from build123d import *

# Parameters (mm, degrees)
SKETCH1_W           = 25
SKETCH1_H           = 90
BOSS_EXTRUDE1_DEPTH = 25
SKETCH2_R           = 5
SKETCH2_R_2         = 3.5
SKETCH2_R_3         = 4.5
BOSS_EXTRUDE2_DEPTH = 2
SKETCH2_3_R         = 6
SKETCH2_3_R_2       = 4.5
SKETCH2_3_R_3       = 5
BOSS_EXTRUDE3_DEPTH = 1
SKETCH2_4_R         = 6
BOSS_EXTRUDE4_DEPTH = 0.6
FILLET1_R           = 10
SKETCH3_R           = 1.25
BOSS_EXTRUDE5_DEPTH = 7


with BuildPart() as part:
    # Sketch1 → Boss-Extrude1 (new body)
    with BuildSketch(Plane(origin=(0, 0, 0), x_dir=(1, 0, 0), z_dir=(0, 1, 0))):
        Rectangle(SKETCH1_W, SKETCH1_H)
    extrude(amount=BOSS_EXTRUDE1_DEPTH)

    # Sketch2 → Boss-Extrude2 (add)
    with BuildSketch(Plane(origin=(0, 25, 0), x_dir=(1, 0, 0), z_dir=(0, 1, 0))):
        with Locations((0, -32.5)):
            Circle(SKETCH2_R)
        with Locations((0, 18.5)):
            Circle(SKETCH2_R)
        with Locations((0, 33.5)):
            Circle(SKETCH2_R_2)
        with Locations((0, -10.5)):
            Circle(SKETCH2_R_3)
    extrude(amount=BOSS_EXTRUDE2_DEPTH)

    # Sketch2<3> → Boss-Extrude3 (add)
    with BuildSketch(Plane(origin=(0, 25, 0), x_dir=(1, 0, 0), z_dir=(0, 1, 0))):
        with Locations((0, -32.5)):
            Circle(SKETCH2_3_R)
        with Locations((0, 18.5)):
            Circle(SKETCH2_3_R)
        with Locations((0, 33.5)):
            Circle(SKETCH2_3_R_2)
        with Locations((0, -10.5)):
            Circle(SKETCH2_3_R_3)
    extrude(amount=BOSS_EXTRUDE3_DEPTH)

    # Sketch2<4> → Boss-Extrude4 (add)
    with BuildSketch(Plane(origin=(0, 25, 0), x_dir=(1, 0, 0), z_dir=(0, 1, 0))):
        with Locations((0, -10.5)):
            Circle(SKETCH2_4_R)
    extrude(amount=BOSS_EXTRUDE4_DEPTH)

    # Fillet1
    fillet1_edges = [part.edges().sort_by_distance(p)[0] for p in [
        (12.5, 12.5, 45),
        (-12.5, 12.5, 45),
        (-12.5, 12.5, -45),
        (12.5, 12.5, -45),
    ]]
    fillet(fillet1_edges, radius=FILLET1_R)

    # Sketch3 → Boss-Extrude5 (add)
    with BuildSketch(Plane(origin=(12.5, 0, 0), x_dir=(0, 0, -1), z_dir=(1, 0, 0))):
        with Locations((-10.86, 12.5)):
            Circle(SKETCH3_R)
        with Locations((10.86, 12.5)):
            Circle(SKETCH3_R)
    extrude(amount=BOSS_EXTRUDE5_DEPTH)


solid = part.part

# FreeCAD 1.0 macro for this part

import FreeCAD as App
import Part
import Sketcher


def edges_at(feature, points):
    """Names of the edges that pass closest to the given points."""
    edges = feature.Shape.Edges
    near = lambda p: min(range(len(edges)), key=lambda i: edges[i].distToShape(Part.Vertex(*p))[0])
    return sorted({f"Edge{near(p) + 1}" for p in points})

doc = App.newDocument("Part")
body = doc.addObject("PartDesign::Body", "Body")

# Sketch on XZ plane
sketch1 = body.newObject("Sketcher::SketchObject", "Sketch")
sketch1.AttachmentSupport = (doc.getObject("XZ_Plane"), [""])
sketch1.MapMode = "FlatFace"
sketch1.addGeometry([
    Part.LineSegment(App.Vector(-12, -45, 0), App.Vector(-12, 45, 0)),
    Part.LineSegment(App.Vector(-12, 45, 0), App.Vector(12, 45, 0)),
    Part.LineSegment(App.Vector(12, 45, 0), App.Vector(12, -45, 0)),
    Part.LineSegment(App.Vector(12, -45, 0), App.Vector(-12, -45, 0)),
], False)
sketch1.addConstraint([
    Sketcher.Constraint("Coincident", 0, 2, 1, 1),
    Sketcher.Constraint("Coincident", 1, 2, 2, 1),
    Sketcher.Constraint("Coincident", 2, 2, 3, 1),
    Sketcher.Constraint("Coincident", 3, 2, 0, 1),
    Sketcher.Constraint("Vertical", 0),
    Sketcher.Constraint("Horizontal", 1),
    Sketcher.Constraint("Vertical", 2),
    Sketcher.Constraint("Horizontal", 3),
    Sketcher.Constraint("Symmetric", 0, 2, 2, 2, -1, 1),
    Sketcher.Constraint("DistanceX", 1, 1, 1, 2, 25.0),
    Sketcher.Constraint("DistanceY", 0, 1, 0, 2, 90.0),
])
pad1 = body.newObject("PartDesign::Pad", "Pad")
pad1.Profile = sketch1
pad1.Length = 25
pad1.Reversed = True

# Sketch on XZ plane
sketch2 = body.newObject("Sketcher::SketchObject", "Sketch001")
sketch2.AttachmentSupport = (doc.getObject("XZ_Plane"), [""])
sketch2.MapMode = "FlatFace"
sketch2.AttachmentOffset = App.Placement(App.Vector(0, 0, -25), App.Rotation())
sketch2.addGeometry([
    Part.Circle(App.Vector(0, 32.5, 0), App.Vector(0, 0, 1), 5),
    Part.Circle(App.Vector(0, -18.5, 0), App.Vector(0, 0, 1), 5),
    Part.Circle(App.Vector(0, -33.5, 0), App.Vector(0, 0, 1), 3.5),
    Part.Circle(App.Vector(0, 10.5, 0), App.Vector(0, 0, 1), 4.5),
], False)
sketch2.addConstraint([
    Sketcher.Constraint("Equal", 0, 1),
    Sketcher.Constraint("PointOnObject", 0, 3, -2),
    Sketcher.Constraint("PointOnObject", 1, 3, -2),
    Sketcher.Constraint("PointOnObject", 2, 3, -2),
    Sketcher.Constraint("PointOnObject", 3, 3, -2),
    Sketcher.Constraint("Diameter", 0, 10.0),
    Sketcher.Constraint("Diameter", 2, 7.0),
    Sketcher.Constraint("Diameter", 3, 9.0),
    Sketcher.Constraint("DistanceY", 1, 3, 0, 3, 51.0),
    Sketcher.Constraint("DistanceY", 2, 3, 1, 3, 15.0),
    Sketcher.Constraint("DistanceY", 3, 3, 0, 3, 22.0),
    Sketcher.Constraint("DistanceY", -1, 1, 0, 3, 32.5),
])
pad2 = body.newObject("PartDesign::Pad", "Pad001")
pad2.Profile = sketch2
pad2.Length = 2
pad2.Reversed = True

# Sketch on XZ plane
sketch3 = body.newObject("Sketcher::SketchObject", "Sketch002")
sketch3.AttachmentSupport = (doc.getObject("XZ_Plane"), [""])
sketch3.MapMode = "FlatFace"
sketch3.AttachmentOffset = App.Placement(App.Vector(0, 0, -25), App.Rotation())
sketch3.addGeometry([
    Part.Circle(App.Vector(0, 32.5, 0), App.Vector(0, 0, 1), 6),
    Part.Circle(App.Vector(0, -18.5, 0), App.Vector(0, 0, 1), 6),
    Part.Circle(App.Vector(0, -33.5, 0), App.Vector(0, 0, 1), 4.5),
    Part.Circle(App.Vector(0, 10.5, 0), App.Vector(0, 0, 1), 5),
], False)
sketch3.addConstraint([
    Sketcher.Constraint("Equal", 0, 1),
    Sketcher.Constraint("PointOnObject", 0, 3, -2),
    Sketcher.Constraint("PointOnObject", 1, 3, -2),
    Sketcher.Constraint("PointOnObject", 2, 3, -2),
    Sketcher.Constraint("PointOnObject", 3, 3, -2),
    Sketcher.Constraint("Diameter", 0, 12.0),
    Sketcher.Constraint("Diameter", 2, 9.0),
    Sketcher.Constraint("Diameter", 3, 10.0),
    Sketcher.Constraint("DistanceY", 1, 3, 0, 3, 51.0),
    Sketcher.Constraint("DistanceY", 2, 3, 1, 3, 15.0),
    Sketcher.Constraint("DistanceY", 3, 3, 0, 3, 22.0),
    Sketcher.Constraint("DistanceY", -1, 1, 0, 3, 32.5),
])
pad3 = body.newObject("PartDesign::Pad", "Pad002")
pad3.Profile = sketch3
pad3.Length = 1
pad3.Reversed = True

# Sketch on XZ plane
sketch4 = body.newObject("Sketcher::SketchObject", "Sketch003")
sketch4.AttachmentSupport = (doc.getObject("XZ_Plane"), [""])
sketch4.MapMode = "FlatFace"
sketch4.AttachmentOffset = App.Placement(App.Vector(0, 0, -25), App.Rotation())
sketch4.addGeometry(Part.Circle(App.Vector(0, 10, 0), App.Vector(0, 0, 1), 6), False)
sketch4.addConstraint([
    Sketcher.Constraint("PointOnObject", 0, 3, -2),
    Sketcher.Constraint("Diameter", 0, 12.0),
    Sketcher.Constraint("DistanceY", -1, 1, 0, 3, 10.5),
])
pad4 = body.newObject("PartDesign::Pad", "Pad003")
pad4.Profile = sketch4
pad4.Length = 0.6
pad4.Reversed = True
doc.recompute()

fillet = body.newObject("PartDesign::Fillet", "Fillet")
fillet.Base = (pad4, edges_at(pad4, [
    (12.5, 12.5, 45),
    (-12.5, 12.5, 45),
    (-12.5, 12.5, -45),
    (12.5, 12.5, -45),
]))
fillet.Radius = 10

# Sketch on YZ plane
sketch5 = body.newObject("Sketcher::SketchObject", "Sketch004")
sketch5.AttachmentSupport = (doc.getObject("YZ_Plane"), [""])
sketch5.MapMode = "FlatFace"
sketch5.AttachmentOffset = App.Placement(App.Vector(0, 0, 12.5), App.Rotation())
sketch5.addGeometry([
    Part.Circle(App.Vector(12.5, 10.9, 0), App.Vector(0, 0, 1), 1.2),
    Part.Circle(App.Vector(12.5, -10.9, 0), App.Vector(0, 0, 1), 1.2),
], False)
sketch5.addConstraint([
    Sketcher.Constraint("Equal", 0, 1),
    Sketcher.Constraint("Symmetric", 0, 3, 1, 3, -1),
    Sketcher.Constraint("Diameter", 0, 2.5),
    Sketcher.Constraint("DistanceX", -1, 1, 0, 3, 12.5),
    Sketcher.Constraint("DistanceY", -1, 1, 0, 3, 10.86),
])
pad5 = body.newObject("PartDesign::Pad", "Pad004")
pad5.Profile = sketch5
pad5.Length = 7

doc.recompute()
